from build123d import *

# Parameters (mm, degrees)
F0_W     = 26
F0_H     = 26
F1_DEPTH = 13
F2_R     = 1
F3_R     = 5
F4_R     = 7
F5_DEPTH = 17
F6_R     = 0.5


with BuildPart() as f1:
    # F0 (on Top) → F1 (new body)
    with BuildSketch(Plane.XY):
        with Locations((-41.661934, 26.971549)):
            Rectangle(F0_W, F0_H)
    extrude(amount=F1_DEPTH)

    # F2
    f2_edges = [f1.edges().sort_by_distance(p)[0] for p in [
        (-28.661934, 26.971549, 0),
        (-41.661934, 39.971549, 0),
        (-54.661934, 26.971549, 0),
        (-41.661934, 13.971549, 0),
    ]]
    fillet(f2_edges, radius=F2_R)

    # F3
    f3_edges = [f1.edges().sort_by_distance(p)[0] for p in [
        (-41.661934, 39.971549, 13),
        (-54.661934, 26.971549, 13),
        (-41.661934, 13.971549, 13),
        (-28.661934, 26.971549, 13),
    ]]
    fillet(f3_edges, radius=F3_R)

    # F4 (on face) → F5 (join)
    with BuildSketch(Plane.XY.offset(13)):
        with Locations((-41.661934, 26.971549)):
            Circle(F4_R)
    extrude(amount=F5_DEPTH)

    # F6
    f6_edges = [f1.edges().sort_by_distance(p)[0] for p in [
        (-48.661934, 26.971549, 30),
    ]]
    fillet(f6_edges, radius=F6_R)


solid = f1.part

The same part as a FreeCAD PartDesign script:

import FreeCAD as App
import Part
import Sketcher
from FreeCAD import Vector


def edges_at(feature, points):
    """Names of the edges that pass closest to the given points."""
    edges = feature.Shape.Edges
    near = lambda p: min(range(len(edges)), key=lambda i: edges[i].distToShape(Part.Vertex(*p))[0])
    return sorted({f"Edge{near(p) + 1}" for p in points})

doc = App.newDocument("Part")
body = doc.addObject("PartDesign::Body", "Body")

sketch1 = body.newObject("Sketcher::SketchObject", "Sketch")
sketch1.AttachmentSupport = (doc.getObject("XY_Plane"), [""])
sketch1.MapMode = "FlatFace"
sketch1.addGeometry([
    Part.LineSegment(Vector(-54.661934, 39.971549, 0), Vector(-54.661934, 13.971549, 0)),
    Part.LineSegment(Vector(-54.661934, 13.971549, 0), Vector(-28.661934, 13.971549, 0)),
    Part.LineSegment(Vector(-28.661934, 13.971549, 0), Vector(-28.661934, 39.971549, 0)),
    Part.LineSegment(Vector(-28.661934, 39.971549, 0), Vector(-54.661934, 39.971549, 0)),
], False)
sketch1.addConstraint([
    Sketcher.Constraint("Coincident", 0, 2, 1, 1),
    Sketcher.Constraint("Coincident", 1, 2, 2, 1),
    Sketcher.Constraint("Coincident", 2, 2, 3, 1),
    Sketcher.Constraint("Coincident", 3, 2, 0, 1),
    Sketcher.Constraint("Vertical", 0),
    Sketcher.Constraint("Horizontal", 1),
    Sketcher.Constraint("Vertical", 2),
    Sketcher.Constraint("Horizontal", 3),
    Sketcher.Constraint("Equal", 3, 0),
    Sketcher.Constraint("DistanceX", 1, 1, 1, 2, 26.0),
    Sketcher.Constraint("DistanceY", -1, 1, 0, 2, 13.971549),
    Sketcher.Constraint("DistanceX", 0, 2, -1, 1, 54.661934),
])
pad1 = body.newObject("PartDesign::Pad", "Pad")
pad1.Profile = sketch1
pad1.Length = 13
doc.recompute()

fillet = body.newObject("PartDesign::Fillet", "Fillet")
fillet.Base = (pad1, edges_at(pad1, [
    (-28.662, 26.972, 0),
    (-41.662, 39.972, 0),
    (-54.662, 26.972, 0),
    (-41.662, 13.972, 0),
]))
fillet.Radius = 1
doc.recompute()

fillet2 = body.newObject("PartDesign::Fillet", "Fillet001")
fillet2.Base = (fillet, edges_at(fillet, [
    (-41.662, 39.972, 13),
    (-54.662, 26.972, 13),
    (-41.662, 13.972, 13),
    (-28.662, 26.972, 13),
]))
fillet2.Radius = 5

sketch2 = body.newObject("Sketcher::SketchObject", "Sketch001")
sketch2.AttachmentSupport = (doc.getObject("XY_Plane"), [""])
sketch2.MapMode = "FlatFace"
sketch2.AttachmentOffset = App.Placement(Vector(0, 0, 13), App.Rotation())
sketch2.addGeometry(Part.Circle(Vector(-41.661934, 26.971549, 0), Vector(0, 0, 1), 7), False)
sketch2.addConstraint([
    Sketcher.Constraint("Diameter", 0, 14.0),
    Sketcher.Constraint("DistanceY", -1, 1, 0, 3, 26.971549),
    Sketcher.Constraint("DistanceX", 0, 3, -1, 1, 41.661934),
])
pad2 = body.newObject("PartDesign::Pad", "Pad001")
pad2.Profile = sketch2
pad2.Length = 17
doc.recompute()

fillet3 = body.newObject("PartDesign::Fillet", "Fillet002")
fillet3.Base = (pad2, edges_at(pad2, [(-48.662, 26.972, 30)]))
fillet3.Radius = 0.5

doc.recompute()
